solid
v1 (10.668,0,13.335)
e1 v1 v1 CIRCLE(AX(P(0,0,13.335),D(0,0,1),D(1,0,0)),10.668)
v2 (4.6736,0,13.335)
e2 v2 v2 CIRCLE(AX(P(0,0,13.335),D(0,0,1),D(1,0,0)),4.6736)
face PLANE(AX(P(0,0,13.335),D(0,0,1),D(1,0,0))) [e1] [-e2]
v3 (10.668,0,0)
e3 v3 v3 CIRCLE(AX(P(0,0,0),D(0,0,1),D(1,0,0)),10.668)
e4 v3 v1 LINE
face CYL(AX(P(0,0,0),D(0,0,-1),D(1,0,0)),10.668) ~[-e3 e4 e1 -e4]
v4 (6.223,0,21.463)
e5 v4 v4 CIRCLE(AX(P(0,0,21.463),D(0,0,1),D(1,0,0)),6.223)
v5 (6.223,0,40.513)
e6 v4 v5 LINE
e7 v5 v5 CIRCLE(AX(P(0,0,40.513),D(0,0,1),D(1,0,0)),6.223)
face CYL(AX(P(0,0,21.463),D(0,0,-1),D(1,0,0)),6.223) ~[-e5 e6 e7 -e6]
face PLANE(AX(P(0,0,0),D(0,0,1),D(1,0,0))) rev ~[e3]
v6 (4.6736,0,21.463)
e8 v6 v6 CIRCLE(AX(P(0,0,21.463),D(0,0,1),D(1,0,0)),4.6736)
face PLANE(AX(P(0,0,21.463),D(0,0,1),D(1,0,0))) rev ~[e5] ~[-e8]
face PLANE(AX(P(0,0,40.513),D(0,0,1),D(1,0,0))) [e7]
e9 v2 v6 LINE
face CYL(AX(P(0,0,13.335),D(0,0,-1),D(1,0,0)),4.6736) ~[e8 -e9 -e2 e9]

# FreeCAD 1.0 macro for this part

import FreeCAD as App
import Part
import Sketcher
Q = App.Units.Quantity

doc = App.newDocument("Part")
body = doc.addObject("PartDesign::Body", "Body")

# Sketch on XY plane
sketch1 = doc.addObject("Sketcher::SketchObject", "Sketch")
body.addObject(sketch1)
sketch1.AttachmentSupport = (doc.XY_Plane, [""])
sketch1.MapMode = "FlatFace"
sketch1.addGeometry(Part.Circle(App.Vector(0, 0, 0), App.Vector(0, 0, 1), 11), False)
sketch1.addConstraint([
    Sketcher.Constraint("Coincident", 0, 3, -1, 1),
    Sketcher.Constraint("Diameter", 0, Q("0.84 in")),
])
pad1 = doc.addObject("PartDesign::Pad", "Pad")
body.addObject(pad1)
pad1.Profile = sketch1
pad1.Length = Q("0.525 in")

# Sketch on XY plane
sketch2 = doc.addObject("Sketcher::SketchObject", "Sketch001")
body.addObject(sketch2)
sketch2.AttachmentSupport = (doc.XY_Plane, [""])
sketch2.MapMode = "FlatFace"
sketch2.AttachmentOffset = App.Placement(App.Vector(0, 0, 0.525 * 25.4), App.Rotation())
sketch2.addGeometry(Part.Circle(App.Vector(0, 0, 0), App.Vector(0, 0, 1), 4.7), False)
sketch2.addConstraint([
    Sketcher.Constraint("Coincident", 0, 3, -1, 1),
    Sketcher.Constraint("Diameter", 0, Q("0.368 in")),
])
pad2 = doc.addObject("PartDesign::Pad", "Pad001")
body.addObject(pad2)
pad2.Profile = sketch2
pad2.Length = Q("0.32 in")

# Sketch on XY plane
sketch3 = doc.addObject("Sketcher::SketchObject", "Sketch002")
body.addObject(sketch3)
sketch3.AttachmentSupport = (doc.XY_Plane, [""])
sketch3.MapMode = "FlatFace"
sketch3.AttachmentOffset = App.Placement(App.Vector(0, 0, 0.845 * 25.4), App.Rotation())
sketch3.addGeometry(Part.Circle(App.Vector(0, 0, 0), App.Vector(0, 0, 1), 6), False)
sketch3.addConstraint([
    Sketcher.Constraint("Coincident", 0, 3, -1, 1),
    Sketcher.Constraint("Diameter", 0, Q("0.49 in")),
])
pad3 = doc.addObject("PartDesign::Pad", "Pad002")
body.addObject(pad3)
pad3.Profile = sketch3
pad3.Length = Q("0.75 in")

doc.recompute()
